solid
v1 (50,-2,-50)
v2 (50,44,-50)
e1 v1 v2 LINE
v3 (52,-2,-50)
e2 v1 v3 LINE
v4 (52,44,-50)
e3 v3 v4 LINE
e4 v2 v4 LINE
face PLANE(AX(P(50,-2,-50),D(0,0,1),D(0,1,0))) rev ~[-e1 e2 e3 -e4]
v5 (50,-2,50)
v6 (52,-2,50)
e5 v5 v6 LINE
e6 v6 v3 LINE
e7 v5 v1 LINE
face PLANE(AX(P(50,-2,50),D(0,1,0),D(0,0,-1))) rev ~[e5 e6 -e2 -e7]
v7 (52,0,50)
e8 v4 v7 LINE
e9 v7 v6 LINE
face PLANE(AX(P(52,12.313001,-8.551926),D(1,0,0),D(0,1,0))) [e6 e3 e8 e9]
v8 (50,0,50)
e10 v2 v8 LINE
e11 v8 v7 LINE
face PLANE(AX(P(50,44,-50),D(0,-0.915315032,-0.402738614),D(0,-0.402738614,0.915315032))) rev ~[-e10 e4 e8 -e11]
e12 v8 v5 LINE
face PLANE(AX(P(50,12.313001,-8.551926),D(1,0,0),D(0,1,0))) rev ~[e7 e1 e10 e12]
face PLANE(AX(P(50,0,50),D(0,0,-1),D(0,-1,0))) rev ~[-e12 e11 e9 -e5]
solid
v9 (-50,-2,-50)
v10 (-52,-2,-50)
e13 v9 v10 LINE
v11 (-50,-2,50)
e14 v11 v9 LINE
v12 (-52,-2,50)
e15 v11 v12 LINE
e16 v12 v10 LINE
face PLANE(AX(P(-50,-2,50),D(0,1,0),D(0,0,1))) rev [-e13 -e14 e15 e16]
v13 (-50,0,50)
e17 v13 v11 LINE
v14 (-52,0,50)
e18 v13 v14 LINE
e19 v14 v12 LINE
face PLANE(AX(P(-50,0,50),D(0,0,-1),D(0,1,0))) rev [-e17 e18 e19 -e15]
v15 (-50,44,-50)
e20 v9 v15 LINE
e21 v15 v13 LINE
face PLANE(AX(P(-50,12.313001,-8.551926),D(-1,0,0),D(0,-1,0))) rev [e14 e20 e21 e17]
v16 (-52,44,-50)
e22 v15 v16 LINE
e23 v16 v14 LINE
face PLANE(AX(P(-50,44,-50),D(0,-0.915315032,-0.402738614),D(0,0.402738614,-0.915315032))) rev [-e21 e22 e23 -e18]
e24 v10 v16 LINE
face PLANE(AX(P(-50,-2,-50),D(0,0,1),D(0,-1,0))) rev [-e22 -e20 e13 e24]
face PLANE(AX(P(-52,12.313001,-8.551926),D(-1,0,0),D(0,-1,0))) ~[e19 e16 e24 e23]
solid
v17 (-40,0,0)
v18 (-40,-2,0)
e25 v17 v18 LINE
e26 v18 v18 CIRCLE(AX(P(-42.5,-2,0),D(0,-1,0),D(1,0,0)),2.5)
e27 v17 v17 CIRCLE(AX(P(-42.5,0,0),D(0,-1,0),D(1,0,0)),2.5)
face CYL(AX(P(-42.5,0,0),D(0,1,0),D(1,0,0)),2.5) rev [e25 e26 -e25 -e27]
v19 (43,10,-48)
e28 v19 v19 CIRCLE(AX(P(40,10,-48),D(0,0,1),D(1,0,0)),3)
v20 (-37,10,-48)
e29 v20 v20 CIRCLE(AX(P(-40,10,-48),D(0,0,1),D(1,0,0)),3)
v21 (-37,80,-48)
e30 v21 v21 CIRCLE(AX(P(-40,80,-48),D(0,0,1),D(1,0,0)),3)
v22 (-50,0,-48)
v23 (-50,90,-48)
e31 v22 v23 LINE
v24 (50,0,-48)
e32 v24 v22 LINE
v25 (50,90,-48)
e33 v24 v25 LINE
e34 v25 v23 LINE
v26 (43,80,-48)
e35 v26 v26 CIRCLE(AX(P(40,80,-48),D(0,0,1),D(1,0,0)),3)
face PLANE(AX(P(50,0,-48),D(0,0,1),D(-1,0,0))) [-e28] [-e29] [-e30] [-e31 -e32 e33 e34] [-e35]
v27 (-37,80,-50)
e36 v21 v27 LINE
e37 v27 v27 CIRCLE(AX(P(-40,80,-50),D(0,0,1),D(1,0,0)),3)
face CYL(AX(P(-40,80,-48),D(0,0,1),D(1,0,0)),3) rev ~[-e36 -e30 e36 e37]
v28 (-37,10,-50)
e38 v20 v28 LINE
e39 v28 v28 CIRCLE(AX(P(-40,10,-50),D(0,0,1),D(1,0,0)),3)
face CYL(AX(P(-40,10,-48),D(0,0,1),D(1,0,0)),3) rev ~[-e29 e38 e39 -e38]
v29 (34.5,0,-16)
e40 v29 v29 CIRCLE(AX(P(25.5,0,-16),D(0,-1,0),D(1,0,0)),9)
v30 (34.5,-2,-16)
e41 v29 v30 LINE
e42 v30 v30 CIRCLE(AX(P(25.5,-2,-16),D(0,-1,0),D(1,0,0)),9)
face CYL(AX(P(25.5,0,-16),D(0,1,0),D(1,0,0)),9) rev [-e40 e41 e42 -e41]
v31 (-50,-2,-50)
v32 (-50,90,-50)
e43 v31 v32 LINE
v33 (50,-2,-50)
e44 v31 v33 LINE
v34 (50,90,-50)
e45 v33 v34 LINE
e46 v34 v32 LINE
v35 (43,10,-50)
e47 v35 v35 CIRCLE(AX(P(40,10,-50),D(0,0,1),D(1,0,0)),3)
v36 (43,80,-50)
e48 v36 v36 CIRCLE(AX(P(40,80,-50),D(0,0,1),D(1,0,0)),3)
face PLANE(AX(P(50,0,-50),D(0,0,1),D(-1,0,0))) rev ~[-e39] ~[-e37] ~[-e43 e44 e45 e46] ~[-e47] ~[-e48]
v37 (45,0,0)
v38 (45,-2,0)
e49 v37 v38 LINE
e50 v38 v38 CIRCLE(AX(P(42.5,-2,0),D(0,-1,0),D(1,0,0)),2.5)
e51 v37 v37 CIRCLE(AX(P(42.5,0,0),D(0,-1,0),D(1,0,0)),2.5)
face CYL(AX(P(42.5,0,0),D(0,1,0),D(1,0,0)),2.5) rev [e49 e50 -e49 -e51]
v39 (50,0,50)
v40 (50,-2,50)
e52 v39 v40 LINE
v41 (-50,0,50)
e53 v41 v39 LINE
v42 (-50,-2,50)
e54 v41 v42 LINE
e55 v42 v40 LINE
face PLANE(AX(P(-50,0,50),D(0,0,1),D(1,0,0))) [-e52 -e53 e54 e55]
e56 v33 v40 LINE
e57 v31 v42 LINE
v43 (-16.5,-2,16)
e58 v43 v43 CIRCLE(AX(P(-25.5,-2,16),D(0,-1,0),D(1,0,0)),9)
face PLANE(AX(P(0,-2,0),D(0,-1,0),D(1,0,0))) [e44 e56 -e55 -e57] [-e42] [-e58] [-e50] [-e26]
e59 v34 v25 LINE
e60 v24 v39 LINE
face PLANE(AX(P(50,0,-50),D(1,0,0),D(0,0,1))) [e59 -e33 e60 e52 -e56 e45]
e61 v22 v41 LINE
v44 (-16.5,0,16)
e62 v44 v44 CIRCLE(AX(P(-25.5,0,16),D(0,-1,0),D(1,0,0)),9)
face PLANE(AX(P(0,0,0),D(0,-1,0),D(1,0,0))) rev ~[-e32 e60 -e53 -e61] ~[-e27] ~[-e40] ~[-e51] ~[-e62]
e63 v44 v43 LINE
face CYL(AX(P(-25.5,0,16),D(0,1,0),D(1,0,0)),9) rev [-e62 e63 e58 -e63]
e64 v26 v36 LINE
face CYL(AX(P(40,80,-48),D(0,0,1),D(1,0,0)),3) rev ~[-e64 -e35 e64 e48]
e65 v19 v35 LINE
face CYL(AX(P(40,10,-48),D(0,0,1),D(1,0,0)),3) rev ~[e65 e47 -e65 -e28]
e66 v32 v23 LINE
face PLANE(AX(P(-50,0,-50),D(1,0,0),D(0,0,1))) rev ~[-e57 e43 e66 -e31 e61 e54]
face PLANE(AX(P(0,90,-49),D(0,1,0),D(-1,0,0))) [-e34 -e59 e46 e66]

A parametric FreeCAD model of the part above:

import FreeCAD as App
import Part
import Sketcher
from FreeCAD import Vector


def add_polygon(sketch, points):
    """Adds a closed chain of lines whose ends are joined by coincident constraints."""
    first, n = sketch.GeometryCount, len(points)
    for a, b in zip(points, points[1:] + points[:1]):
        sketch.addGeometry(Part.LineSegment(App.Vector(*a, 0), App.Vector(*b, 0)), False)
    for i in range(n):
        sketch.addConstraint(Sketcher.Constraint("Coincident", first + i, 2, first + (i + 1) % n, 1))

doc = App.newDocument("Part")
body = doc.addObject("PartDesign::Body", "Body")

# Sketch on XZ plane
sketch1 = body.newObject("Sketcher::SketchObject", "Sketch")
sketch1.AttachmentSupport = (doc.getObject("XZ_Plane"), [""])
sketch1.MapMode = "FlatFace"
add_polygon(sketch1, [(-50, 50), (-50, -50), (50, -50), (50, 50)])  # lines 0-3
sketch1.addGeometry(Part.Circle(Vector(25.5, -16, 0), Vector(0, 0, 1), 9), False)  # 4
sketch1.addGeometry(Part.Circle(Vector(-42.5, 0, 0), Vector(0, 0, 1), 2.5), False)  # 5
sketch1.addGeometry(Part.Circle(Vector(-25.5, 16, 0), Vector(0, 0, 1), 9), False)  # 6
sketch1.addGeometry(Part.Circle(Vector(42.5, 0, 0), Vector(0, 0, 1), 2.5), False)  # 7
sketch1.addConstraint([
    Sketcher.Constraint("Vertical", 0),
    Sketcher.Constraint("Horizontal", 1),
    Sketcher.Constraint("Vertical", 2),
    Sketcher.Constraint("Horizontal", 3),
    Sketcher.Constraint("Equal", 4, 6),
    Sketcher.Constraint("Equal", 5, 7),
    Sketcher.Constraint("Symmetric", 4, 3, 6, 3, -1, 1),
    Sketcher.Constraint("Symmetric", 5, 3, 7, 3, -1, 1),
    Sketcher.Constraint("Symmetric", 0, 2, 2, 2, -1, 1),
    Sketcher.Constraint("PointOnObject", 5, 3, -1),
    Sketcher.Constraint("Equal", 3, 0),
    Sketcher.Constraint("Diameter", 4, 18.0),
    Sketcher.Constraint("Diameter", 5, 5.0),
    Sketcher.Constraint("DistanceX", 1, 1, 1, 2, 100.0),
    Sketcher.Constraint("DistanceY", 4, 3, -1, 1, 16.0),
    Sketcher.Constraint("DistanceX", 5, 3, 4, 3, 68.0),
    Sketcher.Constraint("DistanceX", 5, 3, 6, 3, 17.0),
])
pad1 = body.newObject("PartDesign::Pad", "Pad")
pad1.Profile = sketch1
pad1.Length = 2

# Sketch on XZ plane
sketch2 = body.newObject("Sketcher::SketchObject", "Sketch001")
sketch2.AttachmentSupport = (doc.getObject("XZ_Plane"), [""])
sketch2.MapMode = "FlatFace"
add_polygon(sketch2, [(50, -48), (50, -50), (-50, -50), (-50, -48)])  # lines 0-3
sketch2.addConstraint([
    Sketcher.Constraint("Vertical", 0),
    Sketcher.Constraint("Horizontal", 1),
    Sketcher.Constraint("Vertical", 2),
    Sketcher.Constraint("Horizontal", 3),
    Sketcher.Constraint("DistanceX", 1, 2, 1, 1, 100.0),
    Sketcher.Constraint("DistanceY", 0, 2, 0, 1, 2.0),
    Sketcher.Constraint("DistanceX", -1, 1, 0, 2, 50.0),
    Sketcher.Constraint("DistanceY", 0, 2, -1, 1, 50.0),
])
pad2 = body.newObject("PartDesign::Pad", "Pad001")
pad2.Profile = sketch2
pad2.Length = 90
pad2.Reversed = True

# Sketch on XY plane
sketch3 = body.newObject("Sketcher::SketchObject", "Sketch002")
sketch3.AttachmentSupport = (doc.getObject("XY_Plane"), [""])
sketch3.MapMode = "FlatFace"
sketch3.AttachmentOffset = App.Placement(Vector(0, 0, -48), App.Rotation())
sketch3.addGeometry([
    Part.Circle(Vector(-40, 80, 0), Vector(0, 0, 1), 3),
    Part.Circle(Vector(40, 80, 0), Vector(0, 0, 1), 3),
    Part.Circle(Vector(-40, 10, 0), Vector(0, 0, 1), 3),
    Part.Circle(Vector(40, 10, 0), Vector(0, 0, 1), 3),
], False)
sketch3.addConstraint([
    Sketcher.Constraint("Equal", 0, 1),
    Sketcher.Constraint("Equal", 1, 2),
    Sketcher.Constraint("Equal", 2, 3),
    Sketcher.Constraint("Symmetric", 0, 3, 1, 3, -2),
    Sketcher.Constraint("Symmetric", 2, 3, 3, 3, -2),
    Sketcher.Constraint("Vertical", 0, 3, 2, 3),
    Sketcher.Constraint("Diameter", 0, 6.0),
    Sketcher.Constraint("DistanceX", 0, 3, -1, 1, 40.0),
    Sketcher.Constraint("DistanceY", -1, 1, 0, 3, 80.0),
    Sketcher.Constraint("DistanceY", -1, 1, 2, 3, 10.0),
])
pocket1 = body.newObject("PartDesign::Pocket", "Pocket")
pocket1.Profile = sketch3
pocket1.Length = 25
body2 = doc.addObject("PartDesign::Body", "Body001")

# Sketch on YZ plane
sketch4 = body2.newObject("Sketcher::SketchObject", "Sketch003")
sketch4.AttachmentSupport = (doc.getObject("YZ_Plane001"), [""])
sketch4.MapMode = "FlatFace"
sketch4.AttachmentOffset = App.Placement(Vector(0, 0, 50), App.Rotation())
add_polygon(sketch4, [(0, 50), (-2, 50), (-2, -50), (44, -50)])  # lines 0-3
sketch4.addConstraint([
    Sketcher.Constraint("Horizontal", 0),
    Sketcher.Constraint("Vertical", 1),
    Sketcher.Constraint("Horizontal", 2),
    Sketcher.Constraint("PointOnObject", 3, 2, -2),
    Sketcher.Constraint("DistanceX", 0, 2, 0, 1, 2.0),
    Sketcher.Constraint("DistanceX", 2, 1, 2, 2, 46.0),
    Sketcher.Constraint("DistanceY", 1, 2, 1, 1, 100.0),
    Sketcher.Constraint("DistanceY", -1, 1, 0, 2, 50.0),
])
pad3 = body2.newObject("PartDesign::Pad", "Pad002")
pad3.Profile = sketch4
pad3.Length = 2
body3 = doc.addObject("PartDesign::Body", "Body002")
doc.recompute()

mirroring = doc.addObject("Part::Mirroring", "Mirroring")
mirroring.Source = body2
mirroring.Base = Vector(0, 0, 0)
mirroring.Normal = Vector(1, 0, 0)
body3.BaseFeature = mirroring
doc.recompute()
mirroring.Visibility = False

doc.recompute()
